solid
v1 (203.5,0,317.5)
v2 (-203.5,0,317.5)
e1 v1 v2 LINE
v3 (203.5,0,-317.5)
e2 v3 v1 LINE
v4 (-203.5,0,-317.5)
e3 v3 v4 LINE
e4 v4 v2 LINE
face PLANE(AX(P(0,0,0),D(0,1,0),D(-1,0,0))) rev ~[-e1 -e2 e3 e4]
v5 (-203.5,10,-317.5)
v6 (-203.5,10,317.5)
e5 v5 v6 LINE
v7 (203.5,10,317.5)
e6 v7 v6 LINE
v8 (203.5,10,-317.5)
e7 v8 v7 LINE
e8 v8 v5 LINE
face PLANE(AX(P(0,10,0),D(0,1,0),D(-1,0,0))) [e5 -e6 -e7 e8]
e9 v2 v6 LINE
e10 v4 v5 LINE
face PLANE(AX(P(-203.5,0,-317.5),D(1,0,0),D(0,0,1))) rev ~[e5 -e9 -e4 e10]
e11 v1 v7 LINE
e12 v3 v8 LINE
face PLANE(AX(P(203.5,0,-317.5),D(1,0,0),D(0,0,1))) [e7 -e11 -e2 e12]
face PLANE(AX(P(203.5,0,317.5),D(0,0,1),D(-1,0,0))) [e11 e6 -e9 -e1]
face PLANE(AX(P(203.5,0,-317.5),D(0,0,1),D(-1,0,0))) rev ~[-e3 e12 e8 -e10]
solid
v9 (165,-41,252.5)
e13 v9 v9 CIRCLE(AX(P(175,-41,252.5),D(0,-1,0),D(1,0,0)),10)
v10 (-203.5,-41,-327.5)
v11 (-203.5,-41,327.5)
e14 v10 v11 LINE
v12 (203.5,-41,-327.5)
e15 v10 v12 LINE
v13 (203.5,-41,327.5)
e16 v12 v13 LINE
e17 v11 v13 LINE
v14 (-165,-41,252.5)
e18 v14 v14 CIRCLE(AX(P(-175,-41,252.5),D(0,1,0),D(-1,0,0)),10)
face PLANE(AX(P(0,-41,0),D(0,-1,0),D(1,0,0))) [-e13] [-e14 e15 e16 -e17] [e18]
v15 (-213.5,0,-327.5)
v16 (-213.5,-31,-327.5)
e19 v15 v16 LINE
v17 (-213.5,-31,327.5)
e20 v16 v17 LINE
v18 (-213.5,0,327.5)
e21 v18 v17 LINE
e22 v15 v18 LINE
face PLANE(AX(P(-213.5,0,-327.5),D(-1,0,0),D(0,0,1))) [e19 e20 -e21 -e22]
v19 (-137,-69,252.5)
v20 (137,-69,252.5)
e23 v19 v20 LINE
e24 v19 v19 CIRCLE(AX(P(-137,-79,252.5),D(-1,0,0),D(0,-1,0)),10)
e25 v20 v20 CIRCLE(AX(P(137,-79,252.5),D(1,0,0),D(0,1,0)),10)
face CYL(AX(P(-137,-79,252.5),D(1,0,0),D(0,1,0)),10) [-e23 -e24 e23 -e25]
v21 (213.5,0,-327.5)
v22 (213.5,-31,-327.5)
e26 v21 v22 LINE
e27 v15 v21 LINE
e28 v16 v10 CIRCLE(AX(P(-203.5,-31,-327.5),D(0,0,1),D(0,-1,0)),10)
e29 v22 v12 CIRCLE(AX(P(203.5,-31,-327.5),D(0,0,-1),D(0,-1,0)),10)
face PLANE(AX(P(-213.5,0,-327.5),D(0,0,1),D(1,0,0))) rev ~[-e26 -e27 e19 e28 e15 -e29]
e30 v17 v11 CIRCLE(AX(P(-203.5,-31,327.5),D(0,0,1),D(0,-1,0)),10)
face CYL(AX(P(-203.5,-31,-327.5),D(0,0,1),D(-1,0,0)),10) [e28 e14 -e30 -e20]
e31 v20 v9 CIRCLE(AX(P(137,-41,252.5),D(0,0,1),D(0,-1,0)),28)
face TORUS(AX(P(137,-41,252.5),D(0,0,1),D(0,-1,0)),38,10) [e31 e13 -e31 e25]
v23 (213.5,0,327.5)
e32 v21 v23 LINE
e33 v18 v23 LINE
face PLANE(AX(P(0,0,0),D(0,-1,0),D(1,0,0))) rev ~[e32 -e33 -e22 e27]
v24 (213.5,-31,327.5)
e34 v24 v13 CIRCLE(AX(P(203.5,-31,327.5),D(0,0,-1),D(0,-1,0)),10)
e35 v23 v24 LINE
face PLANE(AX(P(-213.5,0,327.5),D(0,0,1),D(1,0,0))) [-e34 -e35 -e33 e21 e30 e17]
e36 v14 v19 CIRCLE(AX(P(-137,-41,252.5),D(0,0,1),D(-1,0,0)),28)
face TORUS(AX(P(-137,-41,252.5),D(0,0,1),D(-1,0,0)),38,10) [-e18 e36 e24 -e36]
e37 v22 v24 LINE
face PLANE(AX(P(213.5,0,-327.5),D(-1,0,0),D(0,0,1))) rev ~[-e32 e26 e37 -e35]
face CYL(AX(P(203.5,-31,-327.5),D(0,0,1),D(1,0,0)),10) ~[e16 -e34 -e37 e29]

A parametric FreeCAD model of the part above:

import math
import FreeCAD as App
import Part
import Sketcher


def edges_at(feature, points):
    """Names of the edges that pass closest to the given points."""
    edges = feature.Shape.Edges
    near = lambda p: min(range(len(edges)), key=lambda i: edges[i].distToShape(Part.Vertex(*p))[0])
    return sorted({f"Edge{near(p) + 1}" for p in points})

doc = App.newDocument("Part")
body = doc.addObject("PartDesign::Body", "Body")

# Sketch on XZ plane
sketch1 = body.newObject("Sketcher::SketchObject", "Sketch")
sketch1.AttachmentSupport = (doc.getObject("XZ_Plane"), [""])
sketch1.MapMode = "FlatFace"
sketch1.addGeometry(Part.LineSegment(App.Vector(-214, 328, 0), App.Vector(-214, -328, 0)), False)
sketch1.addGeometry(Part.LineSegment(App.Vector(-214, -328, 0), App.Vector(214, -328, 0)), False)
sketch1.addGeometry(Part.LineSegment(App.Vector(214, -328, 0), App.Vector(214, 328, 0)), False)
sketch1.addGeometry(Part.LineSegment(App.Vector(214, 328, 0), App.Vector(-214, 328, 0)), False)
sketch1.addConstraint(Sketcher.Constraint("Coincident", 0, 2, 1, 1))
sketch1.addConstraint(Sketcher.Constraint("Coincident", 1, 2, 2, 1))
sketch1.addConstraint(Sketcher.Constraint("Coincident", 2, 2, 3, 1))
sketch1.addConstraint(Sketcher.Constraint("Coincident", 3, 2, 0, 1))
sketch1.addConstraint(Sketcher.Constraint("Vertical", 0))
sketch1.addConstraint(Sketcher.Constraint("Horizontal", 1))
sketch1.addConstraint(Sketcher.Constraint("Vertical", 2))
sketch1.addConstraint(Sketcher.Constraint("Horizontal", 3))
sketch1.addConstraint(Sketcher.Constraint("Symmetric", 0, 2, 2, 2, -1, 1))
sketch1.addConstraint(Sketcher.Constraint("DistanceX", 1, 1, 1, 2, 427.0))
sketch1.addConstraint(Sketcher.Constraint("DistanceY", 0, 2, 0, 1, 655.0))
pad1 = body.newObject("PartDesign::Pad", "Pad")
pad1.Profile = sketch1
pad1.Length = 41
doc.recompute()

fillet = body.newObject("PartDesign::Fillet", "Fillet")
fillet.Base = (pad1, edges_at(pad1, [(-213.5, -41, 0), (213.5, -41, 0)]))
fillet.Radius = 10

# Sketch on XZ plane
sketch2 = body.newObject("Sketcher::SketchObject", "Sketch001")
sketch2.AttachmentSupport = (doc.getObject("XZ_Plane"), [""])
sketch2.MapMode = "FlatFace"
sketch2.AttachmentOffset = App.Placement(App.Vector(0, 0, 41), App.Rotation())
sketch2.addGeometry(Part.Circle(App.Vector(-175, 252, 0), App.Vector(0, 0, 1), 10), False)
sketch2.addConstraint(Sketcher.Constraint("Diameter", 0, 20.0))
sketch2.addConstraint(Sketcher.Constraint("DistanceX", 0, 3, -1, 1, 175.0))
sketch2.addConstraint(Sketcher.Constraint("DistanceY", -1, 1, 0, 3, 252.5))

# Sketch on XY plane
sketch3 = body.newObject("Sketcher::SketchObject", "Sketch002")
sketch3.AttachmentSupport = (doc.getObject("XY_Plane"), [""])
sketch3.MapMode = "FlatFace"
sketch3.AttachmentOffset = App.Placement(App.Vector(0, 0, 252.5), App.Rotation())
sketch3.addGeometry(Part.ArcOfCircle(Part.Circle(App.Vector(-137, -41, 0), App.Vector(0, 0, 1), 38), math.radians(180), math.radians(270)), False)
sketch3.addGeometry(Part.LineSegment(App.Vector(-137, -79, 0), App.Vector(137, -79, 0)), False)
sketch3.addGeometry(Part.ArcOfCircle(Part.Circle(App.Vector(137, -41, 0), App.Vector(0, 0, 1), 38), math.radians(-90), math.radians(0)), False)
sketch3.addConstraint(Sketcher.Constraint("Tangent", 0, 2, 1, 1))
sketch3.addConstraint(Sketcher.Constraint("Tangent", 1, 2, 2, 1))
sketch3.addConstraint(Sketcher.Constraint("Horizontal", 1))
sketch3.addConstraint(Sketcher.Constraint("Equal", 0, 2))
sketch3.addConstraint(Sketcher.Constraint("Symmetric", 0, 1, 2, 2, -2))
sketch3.addConstraint(Sketcher.Constraint("Horizontal", 2, 3, 0, 1))
sketch3.addConstraint(Sketcher.Constraint("Radius", 0, 38.0))
sketch3.addConstraint(Sketcher.Constraint("DistanceX", 1, 1, 1, 2, 274.0))
sketch3.addConstraint(Sketcher.Constraint("DistanceY", 0, 3, -1, 1, 41.0))
doc.recompute()

additivepipe = body.newObject("PartDesign::AdditivePipe", "AdditivePipe")
additivepipe.Profile = sketch2
additivepipe.Spine = (sketch3, ["Edge1", "Edge2", "Edge3"])
body2 = doc.addObject("PartDesign::Body", "Body001")

# Sketch on XZ plane
sketch4 = body2.newObject("Sketcher::SketchObject", "Sketch003")
sketch4.AttachmentSupport = (doc.getObject("XZ_Plane001"), [""])
sketch4.MapMode = "FlatFace"
sketch4.addGeometry(Part.LineSegment(App.Vector(204, 318, 0), App.Vector(204, -318, 0)), False)
sketch4.addGeometry(Part.LineSegment(App.Vector(204, -318, 0), App.Vector(-204, -318, 0)), False)
sketch4.addGeometry(Part.LineSegment(App.Vector(-204, -318, 0), App.Vector(-204, 318, 0)), False)
sketch4.addGeometry(Part.LineSegment(App.Vector(-204, 318, 0), App.Vector(204, 318, 0)), False)
sketch4.addConstraint(Sketcher.Constraint("Coincident", 0, 2, 1, 1))
sketch4.addConstraint(Sketcher.Constraint("Coincident", 1, 2, 2, 1))
sketch4.addConstraint(Sketcher.Constraint("Coincident", 2, 2, 3, 1))
sketch4.addConstraint(Sketcher.Constraint("Coincident", 3, 2, 0, 1))
sketch4.addConstraint(Sketcher.Constraint("Vertical", 0))
sketch4.addConstraint(Sketcher.Constraint("Horizontal", 1))
sketch4.addConstraint(Sketcher.Constraint("Vertical", 2))
sketch4.addConstraint(Sketcher.Constraint("Horizontal", 3))
sketch4.addConstraint(Sketcher.Constraint("Symmetric", 0, 2, 2, 2, -1, 1))
sketch4.addConstraint(Sketcher.Constraint("DistanceX", 1, 2, 1, 1, 407.0))
sketch4.addConstraint(Sketcher.Constraint("DistanceY", 0, 2, 0, 1, 635.0))
pad2 = body2.newObject("PartDesign::Pad", "Pad001")
pad2.Profile = sketch4
pad2.Length = 10
pad2.Reversed = True

doc.recompute()
